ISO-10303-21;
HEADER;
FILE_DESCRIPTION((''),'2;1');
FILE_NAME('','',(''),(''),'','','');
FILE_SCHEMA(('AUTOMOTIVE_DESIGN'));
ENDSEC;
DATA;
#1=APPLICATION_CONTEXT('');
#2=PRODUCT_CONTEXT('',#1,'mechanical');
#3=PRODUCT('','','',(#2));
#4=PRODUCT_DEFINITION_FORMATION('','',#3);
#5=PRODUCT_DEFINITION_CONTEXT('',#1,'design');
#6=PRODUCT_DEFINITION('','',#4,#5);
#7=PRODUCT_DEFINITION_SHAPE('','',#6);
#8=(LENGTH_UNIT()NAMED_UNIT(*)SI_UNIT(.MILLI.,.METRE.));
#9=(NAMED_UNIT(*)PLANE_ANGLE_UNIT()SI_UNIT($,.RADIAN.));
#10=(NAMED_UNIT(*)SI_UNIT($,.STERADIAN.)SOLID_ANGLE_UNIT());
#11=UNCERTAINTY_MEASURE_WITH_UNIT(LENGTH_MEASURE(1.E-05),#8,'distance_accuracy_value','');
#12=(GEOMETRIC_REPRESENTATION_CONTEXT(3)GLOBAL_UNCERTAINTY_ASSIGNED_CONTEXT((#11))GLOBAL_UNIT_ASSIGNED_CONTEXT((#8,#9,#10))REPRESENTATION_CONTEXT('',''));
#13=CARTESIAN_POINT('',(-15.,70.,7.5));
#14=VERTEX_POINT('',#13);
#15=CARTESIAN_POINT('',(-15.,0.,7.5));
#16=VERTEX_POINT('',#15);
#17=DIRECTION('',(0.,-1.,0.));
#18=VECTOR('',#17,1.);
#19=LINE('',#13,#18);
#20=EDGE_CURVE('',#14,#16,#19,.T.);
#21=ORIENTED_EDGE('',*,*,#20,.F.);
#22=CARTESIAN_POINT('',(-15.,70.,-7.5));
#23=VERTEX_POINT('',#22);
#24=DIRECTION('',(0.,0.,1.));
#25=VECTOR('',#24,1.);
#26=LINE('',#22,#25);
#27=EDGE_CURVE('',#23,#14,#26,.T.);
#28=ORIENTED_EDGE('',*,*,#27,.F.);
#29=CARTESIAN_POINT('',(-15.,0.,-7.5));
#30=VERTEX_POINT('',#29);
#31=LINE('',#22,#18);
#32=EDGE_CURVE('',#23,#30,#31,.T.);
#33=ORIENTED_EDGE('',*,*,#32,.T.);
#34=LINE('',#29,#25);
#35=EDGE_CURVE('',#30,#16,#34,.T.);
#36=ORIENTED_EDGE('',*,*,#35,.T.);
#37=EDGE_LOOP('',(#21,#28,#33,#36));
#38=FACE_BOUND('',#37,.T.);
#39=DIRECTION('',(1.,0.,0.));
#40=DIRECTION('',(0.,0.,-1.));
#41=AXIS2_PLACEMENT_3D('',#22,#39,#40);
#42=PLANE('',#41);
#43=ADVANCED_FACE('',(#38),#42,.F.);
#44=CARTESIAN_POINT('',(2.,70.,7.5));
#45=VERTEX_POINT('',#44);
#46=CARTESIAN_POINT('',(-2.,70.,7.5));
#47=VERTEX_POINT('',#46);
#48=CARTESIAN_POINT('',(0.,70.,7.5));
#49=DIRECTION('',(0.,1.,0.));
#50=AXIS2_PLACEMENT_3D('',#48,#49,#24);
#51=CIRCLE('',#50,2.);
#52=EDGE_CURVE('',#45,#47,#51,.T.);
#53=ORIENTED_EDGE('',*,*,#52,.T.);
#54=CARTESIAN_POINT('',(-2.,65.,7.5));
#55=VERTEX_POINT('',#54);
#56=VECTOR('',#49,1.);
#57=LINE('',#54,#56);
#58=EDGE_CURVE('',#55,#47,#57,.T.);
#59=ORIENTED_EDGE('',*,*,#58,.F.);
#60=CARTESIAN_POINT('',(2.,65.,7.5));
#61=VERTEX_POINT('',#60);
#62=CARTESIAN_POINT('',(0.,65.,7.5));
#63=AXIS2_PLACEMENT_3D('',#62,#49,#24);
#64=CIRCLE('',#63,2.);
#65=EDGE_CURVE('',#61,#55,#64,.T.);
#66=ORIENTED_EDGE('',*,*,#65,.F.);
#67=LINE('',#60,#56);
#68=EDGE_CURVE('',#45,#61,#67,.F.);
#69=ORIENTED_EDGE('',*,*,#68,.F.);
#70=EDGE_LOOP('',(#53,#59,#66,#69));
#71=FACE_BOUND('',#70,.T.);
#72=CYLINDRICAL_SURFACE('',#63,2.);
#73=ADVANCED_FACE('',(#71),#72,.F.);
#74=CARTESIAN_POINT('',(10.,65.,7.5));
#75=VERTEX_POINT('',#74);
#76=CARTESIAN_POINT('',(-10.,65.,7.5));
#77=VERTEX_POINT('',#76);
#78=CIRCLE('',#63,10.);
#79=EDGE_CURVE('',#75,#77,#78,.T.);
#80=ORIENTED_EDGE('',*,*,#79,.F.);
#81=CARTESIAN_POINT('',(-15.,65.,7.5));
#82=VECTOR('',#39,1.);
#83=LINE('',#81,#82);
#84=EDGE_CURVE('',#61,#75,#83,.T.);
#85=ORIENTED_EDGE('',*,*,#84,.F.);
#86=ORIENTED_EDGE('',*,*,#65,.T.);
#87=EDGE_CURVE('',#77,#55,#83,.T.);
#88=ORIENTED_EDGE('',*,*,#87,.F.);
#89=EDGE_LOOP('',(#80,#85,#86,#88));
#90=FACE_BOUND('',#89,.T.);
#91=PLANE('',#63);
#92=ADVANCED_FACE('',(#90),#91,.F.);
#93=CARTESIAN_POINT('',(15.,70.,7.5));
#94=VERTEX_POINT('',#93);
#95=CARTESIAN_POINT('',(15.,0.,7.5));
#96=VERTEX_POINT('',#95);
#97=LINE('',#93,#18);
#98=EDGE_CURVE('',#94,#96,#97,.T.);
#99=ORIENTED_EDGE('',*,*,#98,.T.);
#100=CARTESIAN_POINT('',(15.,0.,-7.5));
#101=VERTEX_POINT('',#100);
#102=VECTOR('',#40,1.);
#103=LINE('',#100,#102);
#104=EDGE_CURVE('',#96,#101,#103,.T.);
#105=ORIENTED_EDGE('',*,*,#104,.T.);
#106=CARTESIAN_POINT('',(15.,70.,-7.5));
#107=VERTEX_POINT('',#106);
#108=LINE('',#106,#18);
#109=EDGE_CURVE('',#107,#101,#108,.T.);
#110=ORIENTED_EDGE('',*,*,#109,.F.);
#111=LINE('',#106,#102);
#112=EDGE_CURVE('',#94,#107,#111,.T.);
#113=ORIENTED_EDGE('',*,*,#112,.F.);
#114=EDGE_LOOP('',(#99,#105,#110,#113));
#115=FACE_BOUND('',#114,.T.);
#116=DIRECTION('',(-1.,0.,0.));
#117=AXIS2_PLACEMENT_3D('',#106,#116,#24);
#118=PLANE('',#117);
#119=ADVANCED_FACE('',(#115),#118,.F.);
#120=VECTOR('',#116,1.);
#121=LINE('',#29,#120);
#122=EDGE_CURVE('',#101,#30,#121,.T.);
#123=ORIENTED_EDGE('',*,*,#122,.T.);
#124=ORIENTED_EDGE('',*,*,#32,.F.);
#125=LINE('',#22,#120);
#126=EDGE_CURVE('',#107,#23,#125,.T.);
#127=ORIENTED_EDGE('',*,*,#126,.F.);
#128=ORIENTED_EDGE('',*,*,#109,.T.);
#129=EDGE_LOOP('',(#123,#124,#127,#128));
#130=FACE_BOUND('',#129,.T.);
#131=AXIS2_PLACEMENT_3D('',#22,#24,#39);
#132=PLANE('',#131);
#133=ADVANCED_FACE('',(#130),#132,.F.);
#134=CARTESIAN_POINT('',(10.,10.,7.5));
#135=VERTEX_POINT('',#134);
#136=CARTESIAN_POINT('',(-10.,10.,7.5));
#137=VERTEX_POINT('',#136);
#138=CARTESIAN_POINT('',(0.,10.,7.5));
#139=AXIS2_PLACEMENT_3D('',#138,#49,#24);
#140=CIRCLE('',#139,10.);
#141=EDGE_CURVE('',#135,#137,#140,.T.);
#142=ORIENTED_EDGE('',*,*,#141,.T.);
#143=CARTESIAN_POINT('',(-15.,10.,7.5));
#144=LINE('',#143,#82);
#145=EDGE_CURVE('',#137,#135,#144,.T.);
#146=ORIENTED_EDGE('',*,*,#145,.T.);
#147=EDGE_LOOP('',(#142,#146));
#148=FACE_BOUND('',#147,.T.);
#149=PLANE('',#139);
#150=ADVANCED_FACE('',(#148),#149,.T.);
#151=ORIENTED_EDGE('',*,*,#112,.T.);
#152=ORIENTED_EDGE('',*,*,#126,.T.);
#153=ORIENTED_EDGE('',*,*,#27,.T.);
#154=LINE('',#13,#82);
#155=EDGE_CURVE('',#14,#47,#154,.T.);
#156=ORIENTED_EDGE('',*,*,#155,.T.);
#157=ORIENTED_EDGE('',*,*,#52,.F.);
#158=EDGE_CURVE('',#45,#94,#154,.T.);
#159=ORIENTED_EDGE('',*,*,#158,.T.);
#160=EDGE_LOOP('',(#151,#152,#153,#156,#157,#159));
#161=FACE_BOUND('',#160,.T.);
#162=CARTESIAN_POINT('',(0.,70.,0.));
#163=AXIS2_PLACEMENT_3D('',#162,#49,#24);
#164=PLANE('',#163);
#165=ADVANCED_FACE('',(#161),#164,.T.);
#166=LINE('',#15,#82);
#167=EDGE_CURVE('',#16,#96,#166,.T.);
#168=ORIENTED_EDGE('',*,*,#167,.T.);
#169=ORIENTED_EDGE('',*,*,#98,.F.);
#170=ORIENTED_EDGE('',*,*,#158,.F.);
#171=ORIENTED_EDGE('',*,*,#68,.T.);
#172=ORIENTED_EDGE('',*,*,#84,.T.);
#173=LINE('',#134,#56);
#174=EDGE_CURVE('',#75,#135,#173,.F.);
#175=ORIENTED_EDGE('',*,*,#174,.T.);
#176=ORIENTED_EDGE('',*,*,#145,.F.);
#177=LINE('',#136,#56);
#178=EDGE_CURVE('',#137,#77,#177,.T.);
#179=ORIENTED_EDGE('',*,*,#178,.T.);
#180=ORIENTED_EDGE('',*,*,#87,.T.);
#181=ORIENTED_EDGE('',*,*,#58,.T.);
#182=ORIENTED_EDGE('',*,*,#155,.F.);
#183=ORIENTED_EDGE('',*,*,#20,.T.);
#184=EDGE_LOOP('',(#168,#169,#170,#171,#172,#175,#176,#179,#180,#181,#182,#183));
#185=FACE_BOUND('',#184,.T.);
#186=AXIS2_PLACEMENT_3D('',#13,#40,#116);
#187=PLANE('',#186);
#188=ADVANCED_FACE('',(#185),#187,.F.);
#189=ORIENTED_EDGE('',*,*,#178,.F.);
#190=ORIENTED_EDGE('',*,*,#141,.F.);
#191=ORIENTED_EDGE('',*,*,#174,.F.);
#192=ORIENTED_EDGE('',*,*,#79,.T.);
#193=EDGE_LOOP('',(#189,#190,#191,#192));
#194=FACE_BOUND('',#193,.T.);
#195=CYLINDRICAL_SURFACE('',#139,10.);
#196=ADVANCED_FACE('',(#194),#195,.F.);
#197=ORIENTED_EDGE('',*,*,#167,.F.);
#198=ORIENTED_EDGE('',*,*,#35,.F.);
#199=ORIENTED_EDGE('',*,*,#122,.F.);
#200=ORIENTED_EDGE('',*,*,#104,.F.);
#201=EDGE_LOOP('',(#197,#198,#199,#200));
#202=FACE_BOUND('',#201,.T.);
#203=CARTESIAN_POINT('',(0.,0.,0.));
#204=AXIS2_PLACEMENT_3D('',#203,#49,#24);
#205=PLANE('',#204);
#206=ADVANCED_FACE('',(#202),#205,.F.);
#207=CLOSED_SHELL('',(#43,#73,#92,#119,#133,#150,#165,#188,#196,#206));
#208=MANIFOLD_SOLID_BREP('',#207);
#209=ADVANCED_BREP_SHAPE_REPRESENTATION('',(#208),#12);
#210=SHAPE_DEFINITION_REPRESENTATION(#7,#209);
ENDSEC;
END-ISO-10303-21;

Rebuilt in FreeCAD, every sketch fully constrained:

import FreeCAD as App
import Part
import Sketcher


def add_polygon(sketch, points):
    """Adds a closed chain of lines whose ends are joined by coincident constraints."""
    first, n = sketch.GeometryCount, len(points)
    for a, b in zip(points, points[1:] + points[:1]):
        sketch.addGeometry(Part.LineSegment(App.Vector(*a, 0), App.Vector(*b, 0)), False)
    for i in range(n):
        sketch.addConstraint(Sketcher.Constraint("Coincident", first + i, 2, first + (i + 1) % n, 1))

doc = App.newDocument("Part")
body = doc.addObject("PartDesign::Body", "Body")

# Sketch on XZ plane
sketch1 = body.newObject("Sketcher::SketchObject", "Sketch")
sketch1.AttachmentSupport = (doc.getObject("XZ_Plane"), [""])
sketch1.MapMode = "FlatFace"
add_polygon(sketch1, [(-15, -8), (-15, 8), (15, 8), (15, -8)])  # lines 0-3
sketch1.addConstraint(Sketcher.Constraint("Vertical", 0))
sketch1.addConstraint(Sketcher.Constraint("Horizontal", 1))
sketch1.addConstraint(Sketcher.Constraint("Vertical", 2))
sketch1.addConstraint(Sketcher.Constraint("Horizontal", 3))
sketch1.addConstraint(Sketcher.Constraint("Symmetric", 0, 2, 2, 2, -1, 1))
sketch1.addConstraint(Sketcher.Constraint("DistanceX", 1, 1, 1, 2, 30.0))
sketch1.addConstraint(Sketcher.Constraint("DistanceY", 0, 1, 0, 2, 15.0))
pad1 = body.newObject("PartDesign::Pad", "Pad")
pad1.Profile = sketch1
pad1.Length = 70
pad1.Reversed = True

# Sketch on XZ plane
sketch2 = body.newObject("Sketcher::SketchObject", "Sketch001")
sketch2.AttachmentSupport = (doc.getObject("XZ_Plane"), [""])
sketch2.MapMode = "FlatFace"
sketch2.AttachmentOffset = App.Placement(App.Vector(0, 0, -70), App.Rotation())
sketch2.addGeometry(Part.Circle(App.Vector(0, 7.5, 0), App.Vector(0, 0, 1), 2), False)
sketch2.addConstraint(Sketcher.Constraint("PointOnObject", 0, 3, -2))
sketch2.addConstraint(Sketcher.Constraint("Diameter", 0, 4.0))
sketch2.addConstraint(Sketcher.Constraint("DistanceY", -1, 1, 0, 3, 7.5))
pocket1 = body.newObject("PartDesign::Pocket", "Pocket")
pocket1.Profile = sketch2
pocket1.Length = 5
pocket1.Reversed = True

# Sketch on XZ plane
sketch3 = body.newObject("Sketcher::SketchObject", "Sketch002")
sketch3.AttachmentSupport = (doc.getObject("XZ_Plane"), [""])
sketch3.MapMode = "FlatFace"
sketch3.AttachmentOffset = App.Placement(App.Vector(0, 0, -65), App.Rotation())
sketch3.addGeometry(Part.Circle(App.Vector(0, 8, 0), App.Vector(0, 0, 1), 10), False)
sketch3.addConstraint(Sketcher.Constraint("PointOnObject", 0, 3, -2))
sketch3.addConstraint(Sketcher.Constraint("Diameter", 0, 20.0))
sketch3.addConstraint(Sketcher.Constraint("DistanceY", -1, 1, 0, 3, 7.5))
pocket2 = body.newObject("PartDesign::Pocket", "Pocket001")
pocket2.Profile = sketch3
pocket2.Length = 55
pocket2.Reversed = True

doc.recompute()
